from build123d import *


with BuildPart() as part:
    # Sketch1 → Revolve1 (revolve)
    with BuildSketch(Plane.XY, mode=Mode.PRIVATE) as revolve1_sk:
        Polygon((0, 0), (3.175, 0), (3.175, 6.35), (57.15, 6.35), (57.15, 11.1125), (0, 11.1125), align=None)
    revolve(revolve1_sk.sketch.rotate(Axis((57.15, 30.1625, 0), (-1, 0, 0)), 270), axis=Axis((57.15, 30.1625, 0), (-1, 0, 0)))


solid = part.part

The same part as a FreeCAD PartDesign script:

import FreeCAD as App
import Part
import Sketcher
from FreeCAD import Vector
Q = App.Units.Quantity

doc = App.newDocument("Part")
params = doc.addObject("Spreadsheet::Sheet", "Params")
for row, (alias, value) in enumerate([
    ("sketch1_width", "2.25 in"),
    ("sketch1_height", "0.25 in"),
    ("sketch1_width2", "0.125 in"),
    ("sketch1_height2", "0.1875 in"),
    ("revolution_angle", "360 deg"),
], start=1):
    params.set(f"A{row}", alias)
    params.set(f"B{row}", "=" + value)
    params.setAlias(f"B{row}", alias)

body = doc.addObject("PartDesign::Body", "Body")

sketch1 = doc.addObject("Sketcher::SketchObject", "Sketch")
body.addObject(sketch1)
sketch1.AttachmentSupport = (doc.XY_Plane, [""])
sketch1.MapMode = "FlatFace"
sketch1.addGeometry(Part.LineSegment(Vector(0, 0, 0), Vector(3.2, 0, 0)), False)
sketch1.addGeometry(Part.LineSegment(Vector(3.2, 0, 0), Vector(3.2, 6.3, 0)), False)
sketch1.addGeometry(Part.LineSegment(Vector(3.2, 6.3, 0), Vector(57.1, 6.3, 0)), False)
sketch1.addGeometry(Part.LineSegment(Vector(57.1, 6.3, 0), Vector(57.1, 11.1, 0)), False)
sketch1.addGeometry(Part.LineSegment(Vector(57.1, 11.1, 0), Vector(0, 11.1, 0)), False)
sketch1.addGeometry(Part.LineSegment(Vector(0, 11.1, 0), Vector(0, 0, 0)), False)
sketch1.addGeometry(Part.LineSegment(Vector(57.1, 30.2, 0), Vector(0, 30.2, 0)), True)
sketch1.addConstraint(Sketcher.Constraint("Coincident", 0, 2, 1, 1))
sketch1.addConstraint(Sketcher.Constraint("Coincident", 1, 2, 2, 1))
sketch1.addConstraint(Sketcher.Constraint("Coincident", 2, 2, 3, 1))
sketch1.addConstraint(Sketcher.Constraint("Coincident", 3, 2, 4, 1))
sketch1.addConstraint(Sketcher.Constraint("Coincident", 4, 2, 5, 1))
sketch1.addConstraint(Sketcher.Constraint("Coincident", 5, 2, 0, 1))
sketch1.addConstraint(Sketcher.Constraint("Horizontal", 0))
sketch1.addConstraint(Sketcher.Constraint("Vertical", 1))
sketch1.addConstraint(Sketcher.Constraint("Horizontal", 2))
sketch1.addConstraint(Sketcher.Constraint("Vertical", 3))
sketch1.addConstraint(Sketcher.Constraint("Horizontal", 4))
sketch1.addConstraint(Sketcher.Constraint("Vertical", 5))
sketch1.addConstraint(Sketcher.Constraint("Horizontal", 6))
sketch1.addConstraint(Sketcher.Constraint("Coincident", 5, 2, -1, 1))
sketch1.addConstraint(Sketcher.Constraint("PointOnObject", 6, 2, -2))
sketch1.addConstraint(Sketcher.Constraint("Vertical", 3, 2, 6, 1))
sketch1.addConstraint(Sketcher.Constraint("DistanceX", 4, 2, 4, 1, Q("2.25 in")))
sketch1.addConstraint(Sketcher.Constraint("DistanceY", 1, 1, 1, 2, Q("0.25 in")))
sketch1.addConstraint(Sketcher.Constraint("DistanceX", 0, 1, 0, 2, Q("0.125 in")))
sketch1.addConstraint(Sketcher.Constraint("DistanceY", 3, 1, 3, 2, Q("0.1875 in")))
sketch1.addConstraint(Sketcher.Constraint("DistanceY", 3, 2, 6, 1, Q("0.75 in")))
sketch1.setExpression("Constraints[16]", "Params.sketch1_width")
sketch1.setExpression("Constraints[17]", "Params.sketch1_height")
sketch1.setExpression("Constraints[18]", "Params.sketch1_width2")
sketch1.setExpression("Constraints[19]", "Params.sketch1_height2")
revolution = doc.addObject("PartDesign::Revolution", "Revolution")
body.addObject(revolution)
revolution.Profile = sketch1
revolution.ReferenceAxis = (sketch1, ["Axis0"])
revolution.setExpression("Angle", "Params.revolution_angle")

doc.recompute()
